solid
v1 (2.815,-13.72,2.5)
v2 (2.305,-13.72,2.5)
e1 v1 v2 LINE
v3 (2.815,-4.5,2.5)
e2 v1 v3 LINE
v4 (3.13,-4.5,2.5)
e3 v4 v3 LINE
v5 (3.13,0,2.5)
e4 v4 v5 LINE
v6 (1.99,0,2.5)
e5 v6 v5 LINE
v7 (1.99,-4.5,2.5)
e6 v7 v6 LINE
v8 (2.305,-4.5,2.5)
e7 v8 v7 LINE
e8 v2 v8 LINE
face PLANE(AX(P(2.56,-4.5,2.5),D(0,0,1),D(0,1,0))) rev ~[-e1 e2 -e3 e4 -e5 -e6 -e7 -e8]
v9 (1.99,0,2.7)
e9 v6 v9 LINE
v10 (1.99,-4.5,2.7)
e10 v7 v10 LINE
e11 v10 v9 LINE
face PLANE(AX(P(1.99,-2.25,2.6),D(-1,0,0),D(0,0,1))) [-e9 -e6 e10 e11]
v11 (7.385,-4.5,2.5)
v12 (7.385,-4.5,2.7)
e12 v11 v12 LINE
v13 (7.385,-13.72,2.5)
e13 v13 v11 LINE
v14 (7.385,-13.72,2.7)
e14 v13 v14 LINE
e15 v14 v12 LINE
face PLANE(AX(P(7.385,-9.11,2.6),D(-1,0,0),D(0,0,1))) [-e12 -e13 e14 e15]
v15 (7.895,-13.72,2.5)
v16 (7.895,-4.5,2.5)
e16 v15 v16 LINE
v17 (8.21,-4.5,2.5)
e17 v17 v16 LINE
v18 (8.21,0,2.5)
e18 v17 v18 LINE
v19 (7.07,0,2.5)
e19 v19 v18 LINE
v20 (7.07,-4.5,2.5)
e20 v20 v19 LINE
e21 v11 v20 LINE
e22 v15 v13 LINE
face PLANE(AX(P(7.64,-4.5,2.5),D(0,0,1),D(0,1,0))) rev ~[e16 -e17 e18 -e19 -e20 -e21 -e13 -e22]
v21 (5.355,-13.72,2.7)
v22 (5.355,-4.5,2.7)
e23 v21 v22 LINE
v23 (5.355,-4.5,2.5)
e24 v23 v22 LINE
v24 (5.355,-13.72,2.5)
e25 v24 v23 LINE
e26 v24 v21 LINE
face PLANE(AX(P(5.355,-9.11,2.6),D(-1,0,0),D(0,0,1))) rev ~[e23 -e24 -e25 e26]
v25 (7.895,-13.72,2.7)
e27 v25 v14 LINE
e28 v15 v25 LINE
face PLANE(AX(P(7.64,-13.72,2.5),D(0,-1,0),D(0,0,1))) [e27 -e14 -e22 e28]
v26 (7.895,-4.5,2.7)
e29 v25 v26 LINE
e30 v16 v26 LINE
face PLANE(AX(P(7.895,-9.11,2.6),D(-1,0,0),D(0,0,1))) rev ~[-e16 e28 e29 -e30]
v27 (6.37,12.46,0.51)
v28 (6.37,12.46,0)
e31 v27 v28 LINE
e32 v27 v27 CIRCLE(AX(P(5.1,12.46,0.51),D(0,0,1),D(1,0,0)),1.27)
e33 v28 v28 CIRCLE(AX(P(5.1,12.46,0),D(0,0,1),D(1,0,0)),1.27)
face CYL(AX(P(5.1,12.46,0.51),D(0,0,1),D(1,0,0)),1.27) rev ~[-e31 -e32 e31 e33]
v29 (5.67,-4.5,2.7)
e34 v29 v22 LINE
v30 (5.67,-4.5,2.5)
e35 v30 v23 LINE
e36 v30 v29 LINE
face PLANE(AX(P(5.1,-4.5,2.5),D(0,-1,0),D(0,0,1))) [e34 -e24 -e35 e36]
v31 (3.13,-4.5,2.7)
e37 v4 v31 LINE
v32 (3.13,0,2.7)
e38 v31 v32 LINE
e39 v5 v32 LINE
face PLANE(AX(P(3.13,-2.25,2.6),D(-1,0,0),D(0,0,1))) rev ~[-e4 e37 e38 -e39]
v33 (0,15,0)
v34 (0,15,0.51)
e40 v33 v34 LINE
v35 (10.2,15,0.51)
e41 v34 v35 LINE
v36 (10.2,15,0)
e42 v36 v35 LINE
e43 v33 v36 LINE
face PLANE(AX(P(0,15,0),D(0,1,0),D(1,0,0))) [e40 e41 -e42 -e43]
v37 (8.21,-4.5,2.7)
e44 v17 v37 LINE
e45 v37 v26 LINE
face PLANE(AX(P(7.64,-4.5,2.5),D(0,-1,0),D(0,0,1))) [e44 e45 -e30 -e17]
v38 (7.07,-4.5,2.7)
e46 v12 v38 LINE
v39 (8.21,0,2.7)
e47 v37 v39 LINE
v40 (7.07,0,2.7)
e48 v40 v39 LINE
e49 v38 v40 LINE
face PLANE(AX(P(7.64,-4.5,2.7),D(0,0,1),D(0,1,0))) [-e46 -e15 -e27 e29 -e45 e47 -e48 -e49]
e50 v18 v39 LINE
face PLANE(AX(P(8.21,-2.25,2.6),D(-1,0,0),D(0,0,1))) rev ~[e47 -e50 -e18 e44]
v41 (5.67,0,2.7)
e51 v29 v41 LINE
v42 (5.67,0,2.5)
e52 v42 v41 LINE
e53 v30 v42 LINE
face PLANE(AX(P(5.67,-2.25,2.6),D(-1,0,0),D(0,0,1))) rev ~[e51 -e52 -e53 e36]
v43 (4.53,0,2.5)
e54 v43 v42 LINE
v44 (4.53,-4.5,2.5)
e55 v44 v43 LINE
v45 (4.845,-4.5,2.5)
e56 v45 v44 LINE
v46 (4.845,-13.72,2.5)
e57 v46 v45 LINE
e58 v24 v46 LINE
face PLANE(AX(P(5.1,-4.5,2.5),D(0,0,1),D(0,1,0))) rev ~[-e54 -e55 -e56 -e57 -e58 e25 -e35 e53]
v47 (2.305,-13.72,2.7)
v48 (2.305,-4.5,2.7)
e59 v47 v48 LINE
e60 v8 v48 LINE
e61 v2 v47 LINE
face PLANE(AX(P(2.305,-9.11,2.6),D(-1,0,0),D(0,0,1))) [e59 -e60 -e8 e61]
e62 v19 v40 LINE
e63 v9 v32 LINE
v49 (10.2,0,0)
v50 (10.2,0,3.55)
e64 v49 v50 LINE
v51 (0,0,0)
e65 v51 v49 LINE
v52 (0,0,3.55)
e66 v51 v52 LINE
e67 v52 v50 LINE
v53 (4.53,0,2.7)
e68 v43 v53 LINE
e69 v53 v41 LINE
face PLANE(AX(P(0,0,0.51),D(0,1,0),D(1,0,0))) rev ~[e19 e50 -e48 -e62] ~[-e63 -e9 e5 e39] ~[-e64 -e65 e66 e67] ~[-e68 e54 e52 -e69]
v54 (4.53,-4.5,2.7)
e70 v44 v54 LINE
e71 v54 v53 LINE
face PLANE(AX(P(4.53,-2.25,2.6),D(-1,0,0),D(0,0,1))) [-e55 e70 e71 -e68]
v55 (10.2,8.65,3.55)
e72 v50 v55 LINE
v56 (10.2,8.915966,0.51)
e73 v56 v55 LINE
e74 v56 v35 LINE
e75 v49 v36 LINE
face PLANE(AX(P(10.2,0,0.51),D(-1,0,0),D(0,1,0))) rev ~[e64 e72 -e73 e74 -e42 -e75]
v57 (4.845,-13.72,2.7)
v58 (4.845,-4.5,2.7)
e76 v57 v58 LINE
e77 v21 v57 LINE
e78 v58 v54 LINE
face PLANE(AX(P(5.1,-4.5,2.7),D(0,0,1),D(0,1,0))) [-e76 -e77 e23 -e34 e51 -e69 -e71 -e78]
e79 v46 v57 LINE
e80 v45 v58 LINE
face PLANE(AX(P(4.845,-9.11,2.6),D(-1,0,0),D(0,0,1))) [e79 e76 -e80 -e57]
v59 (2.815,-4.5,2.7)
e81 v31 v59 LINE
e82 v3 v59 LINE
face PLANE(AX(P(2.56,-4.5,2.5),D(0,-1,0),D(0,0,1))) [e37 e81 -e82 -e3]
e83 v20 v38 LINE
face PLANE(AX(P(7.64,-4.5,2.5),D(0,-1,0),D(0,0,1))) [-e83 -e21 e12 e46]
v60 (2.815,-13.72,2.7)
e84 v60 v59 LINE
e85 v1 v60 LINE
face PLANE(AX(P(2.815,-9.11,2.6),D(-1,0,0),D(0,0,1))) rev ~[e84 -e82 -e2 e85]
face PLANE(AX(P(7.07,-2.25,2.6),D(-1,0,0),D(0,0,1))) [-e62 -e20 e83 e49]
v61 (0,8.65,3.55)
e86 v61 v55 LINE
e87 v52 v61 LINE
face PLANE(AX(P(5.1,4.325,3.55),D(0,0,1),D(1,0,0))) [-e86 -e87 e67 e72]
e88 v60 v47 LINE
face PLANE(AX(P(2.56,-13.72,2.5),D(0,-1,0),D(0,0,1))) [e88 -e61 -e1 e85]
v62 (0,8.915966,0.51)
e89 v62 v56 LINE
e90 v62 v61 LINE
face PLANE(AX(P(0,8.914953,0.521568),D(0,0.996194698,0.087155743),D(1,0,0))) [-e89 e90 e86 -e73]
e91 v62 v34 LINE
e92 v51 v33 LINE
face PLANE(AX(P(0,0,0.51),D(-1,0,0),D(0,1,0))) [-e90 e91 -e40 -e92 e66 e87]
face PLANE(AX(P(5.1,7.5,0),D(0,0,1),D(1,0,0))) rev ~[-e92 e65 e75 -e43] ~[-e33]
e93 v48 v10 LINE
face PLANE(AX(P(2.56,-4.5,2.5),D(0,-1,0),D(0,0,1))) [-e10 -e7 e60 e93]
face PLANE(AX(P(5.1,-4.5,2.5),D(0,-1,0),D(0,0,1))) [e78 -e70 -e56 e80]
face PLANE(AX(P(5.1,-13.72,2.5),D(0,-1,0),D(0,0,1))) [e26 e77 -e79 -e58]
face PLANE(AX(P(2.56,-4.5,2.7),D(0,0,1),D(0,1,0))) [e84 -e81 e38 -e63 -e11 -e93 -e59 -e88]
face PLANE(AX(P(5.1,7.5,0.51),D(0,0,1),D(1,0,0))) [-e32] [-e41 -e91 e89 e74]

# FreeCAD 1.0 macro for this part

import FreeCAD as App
import Part
import Sketcher
from FreeCAD import Vector


def faces_at(feature, points):
    """Names of the faces that lie closest to the given points."""
    faces = feature.Shape.Faces
    near = lambda p: min(range(len(faces)), key=lambda i: faces[i].distToShape(Part.Vertex(*p))[0])
    return sorted({f"Face{near(p) + 1}" for p in points})

doc = App.newDocument("Part")
params = doc.addObject("Spreadsheet::Sheet", "Params")
for row, (alias, value) in enumerate([
    ("sketch1_height", "15 mm"),
    ("sketch1_width", "10.2 mm"),
    ("pad1_length", "0.51 mm"),
    ("sketch2_width", "10.2 mm"),
    ("sketch2_height", "8.65 mm"),
    ("pad2_length", "3.04 mm"),
    ("draft_angle", "5 deg"),
    ("sketch3_width", "4.5 mm"),
    ("sketch3_height", "0.2 mm"),
    ("pad3_length", "1.14 mm"),
    ("sketch4_height", "0.2 mm"),
    ("sketch4_width", "9.22 mm"),
    ("pad4_length", "0.51 mm"),
    ("linearpattern_pitch", "2.54 mm"),
    ("sketch5_diameter", "2.54 mm"),
], start=1):
    params.set(f"A{row}", alias)
    params.set(f"B{row}", "=" + value)
    params.setAlias(f"B{row}", alias)

body = doc.addObject("PartDesign::Body", "Body")

# Sketch on XY plane
sketch1 = doc.addObject("Sketcher::SketchObject", "Sketch")
body.addObject(sketch1)
sketch1.AttachmentSupport = (doc.XY_Plane, [""])
sketch1.MapMode = "FlatFace"
sketch1.addGeometry([
    Part.LineSegment(Vector(0, 15, 0), Vector(0, 0, 0)),
    Part.LineSegment(Vector(0, 0, 0), Vector(10.2, 0, 0)),
    Part.LineSegment(Vector(10.2, 0, 0), Vector(10.2, 15, 0)),
    Part.LineSegment(Vector(10.2, 15, 0), Vector(0, 15, 0)),
], False)
sketch1.addConstraint([
    Sketcher.Constraint("Coincident", 0, 2, 1, 1),
    Sketcher.Constraint("Coincident", 1, 2, 2, 1),
    Sketcher.Constraint("Coincident", 2, 2, 3, 1),
    Sketcher.Constraint("Coincident", 3, 2, 0, 1),
    Sketcher.Constraint("Vertical", 0),
    Sketcher.Constraint("Horizontal", 1),
    Sketcher.Constraint("Vertical", 2),
    Sketcher.Constraint("Horizontal", 3),
    Sketcher.Constraint("Coincident", 0, 2, -1, 1),
    Sketcher.Constraint("DistanceY", 0, 2, 0, 1, 15.0),
    Sketcher.Constraint("DistanceX", 1, 1, 1, 2, 10.2),
])
sketch1.setExpression("Constraints[9]", "Params.sketch1_height")
sketch1.setExpression("Constraints[10]", "Params.sketch1_width")
pad1 = doc.addObject("PartDesign::Pad", "Pad")
body.addObject(pad1)
pad1.Profile = sketch1
pad1.setExpression("Length", "Params.pad1_length")

# Sketch on XY plane
sketch2 = doc.addObject("Sketcher::SketchObject", "Sketch001")
body.addObject(sketch2)
sketch2.AttachmentSupport = (doc.XY_Plane, [""])
sketch2.MapMode = "FlatFace"
sketch2.AttachmentOffset = App.Placement(Vector(0, 0, 0.51), App.Rotation())
sketch2.addGeometry([
    Part.LineSegment(Vector(0, 8.65, 0), Vector(0, 0, 0)),
    Part.LineSegment(Vector(0, 0, 0), Vector(10.2, 0, 0)),
    Part.LineSegment(Vector(10.2, 0, 0), Vector(10.2, 8.65, 0)),
    Part.LineSegment(Vector(10.2, 8.65, 0), Vector(0, 8.65, 0)),
], False)
sketch2.addConstraint([
    Sketcher.Constraint("Coincident", 0, 2, 1, 1),
    Sketcher.Constraint("Coincident", 1, 2, 2, 1),
    Sketcher.Constraint("Coincident", 2, 2, 3, 1),
    Sketcher.Constraint("Coincident", 3, 2, 0, 1),
    Sketcher.Constraint("Vertical", 0),
    Sketcher.Constraint("Horizontal", 1),
    Sketcher.Constraint("Vertical", 2),
    Sketcher.Constraint("Horizontal", 3),
    Sketcher.Constraint("Coincident", 0, 2, -1, 1),
    Sketcher.Constraint("DistanceX", 1, 1, 1, 2, 10.2),
    Sketcher.Constraint("DistanceY", 0, 2, 0, 1, 8.65),
])
sketch2.setExpression("Constraints[9]", "Params.sketch2_width")
sketch2.setExpression("Constraints[10]", "Params.sketch2_height")
pad2 = doc.addObject("PartDesign::Pad", "Pad001")
body.addObject(pad2)
pad2.Profile = sketch2
pad2.setExpression("Length", "Params.pad2_length")
doc.recompute()

datumplane = doc.addObject("PartDesign::Plane", "DatumPlane")
body.addObject(datumplane)
datumplane.AttachmentSupport = (doc.XY_Plane, [""])
datumplane.MapMode = "FlatFace"
datumplane.AttachmentOffset = App.Placement(Vector(0, 0, 3.55), App.Rotation())
draft = doc.addObject("PartDesign::Draft", "Draft")
body.addObject(draft)
draft.Base = (pad2, faces_at(pad2, [(5.1, 8.65, 2.03)]))
draft.NeutralPlane = (datumplane, [""])
draft.setExpression("Angle", "Params.draft_angle")
draft.Reversed = False

# Sketch on YZ plane
sketch3 = doc.addObject("Sketcher::SketchObject", "Sketch002")
body.addObject(sketch3)
sketch3.AttachmentSupport = (doc.YZ_Plane, [""])
sketch3.MapMode = "FlatFace"
sketch3.AttachmentOffset = App.Placement(Vector(0, 0, 2.56), App.Rotation())
sketch3.addGeometry([
    Part.LineSegment(Vector(0, 2.5, 0), Vector(-4.5, 2.5, 0)),
    Part.LineSegment(Vector(-4.5, 2.5, 0), Vector(-4.5, 2.7, 0)),
    Part.LineSegment(Vector(-4.5, 2.7, 0), Vector(0, 2.7, 0)),
    Part.LineSegment(Vector(0, 2.7, 0), Vector(0, 2.5, 0)),
], False)
sketch3.addConstraint([
    Sketcher.Constraint("Coincident", 0, 2, 1, 1),
    Sketcher.Constraint("Coincident", 1, 2, 2, 1),
    Sketcher.Constraint("Coincident", 2, 2, 3, 1),
    Sketcher.Constraint("Coincident", 3, 2, 0, 1),
    Sketcher.Constraint("Horizontal", 0),
    Sketcher.Constraint("Vertical", 1),
    Sketcher.Constraint("Horizontal", 2),
    Sketcher.Constraint("Vertical", 3),
    Sketcher.Constraint("PointOnObject", 2, 2, -2),
    Sketcher.Constraint("DistanceX", 0, 2, 0, 1, 4.5),
    Sketcher.Constraint("DistanceY", 1, 1, 1, 2, 0.2),
    Sketcher.Constraint("DistanceY", -1, 1, 0, 2, 2.5),
])
sketch3.setExpression("Constraints[9]", "Params.sketch3_width")
sketch3.setExpression("Constraints[10]", "Params.sketch3_height")
pad3 = doc.addObject("PartDesign::Pad", "Pad002")
body.addObject(pad3)
pad3.Profile = sketch3
pad3.setExpression("Length", "Params.pad3_length")
pad3.Midplane = True

# Sketch on YZ plane
sketch4 = doc.addObject("Sketcher::SketchObject", "Sketch003")
body.addObject(sketch4)
sketch4.AttachmentSupport = (doc.YZ_Plane, [""])
sketch4.MapMode = "FlatFace"
sketch4.AttachmentOffset = App.Placement(Vector(0, 0, 2.56), App.Rotation())
sketch4.addGeometry([
    Part.LineSegment(Vector(-4.5, 2.5, 0), Vector(-13.72, 2.5, 0)),
    Part.LineSegment(Vector(-13.72, 2.5, 0), Vector(-13.72, 2.7, 0)),
    Part.LineSegment(Vector(-13.72, 2.7, 0), Vector(-4.5, 2.7, 0)),
    Part.LineSegment(Vector(-4.5, 2.7, 0), Vector(-4.5, 2.5, 0)),
], False)
sketch4.addConstraint([
    Sketcher.Constraint("Coincident", 0, 2, 1, 1),
    Sketcher.Constraint("Coincident", 1, 2, 2, 1),
    Sketcher.Constraint("Coincident", 2, 2, 3, 1),
    Sketcher.Constraint("Coincident", 3, 2, 0, 1),
    Sketcher.Constraint("Horizontal", 0),
    Sketcher.Constraint("Vertical", 1),
    Sketcher.Constraint("Horizontal", 2),
    Sketcher.Constraint("Vertical", 3),
    Sketcher.Constraint("DistanceY", 1, 1, 1, 2, 0.2),
    Sketcher.Constraint("DistanceX", 0, 2, 0, 1, 9.22),
    Sketcher.Constraint("DistanceY", -1, 1, 0, 2, 2.5),
    Sketcher.Constraint("DistanceX", 2, 2, -1, 1, 4.5),
])
sketch4.setExpression("Constraints[8]", "Params.sketch4_height")
sketch4.setExpression("Constraints[9]", "Params.sketch4_width")
pad4 = doc.addObject("PartDesign::Pad", "Pad003")
body.addObject(pad4)
pad4.Profile = sketch4
pad4.setExpression("Length", "Params.pad4_length")
pad4.Midplane = True
doc.recompute()

linearpattern = doc.addObject("PartDesign::LinearPattern", "LinearPattern")
body.addObject(linearpattern)
linearpattern.Originals = [pad3, pad4]
linearpattern.Direction = (doc.X_Axis, [""])
linearpattern.Mode = "offset"
linearpattern.setExpression("Offset", "Params.linearpattern_pitch")
linearpattern.Occurrences = 3
body.Tip = linearpattern

# Sketch on XY plane
sketch5 = doc.addObject("Sketcher::SketchObject", "Sketch004")
body.addObject(sketch5)
sketch5.AttachmentSupport = (doc.XY_Plane, [""])
sketch5.MapMode = "FlatFace"
sketch5.AttachmentOffset = App.Placement(Vector(0, 0, 0.51), App.Rotation())
sketch5.addGeometry(Part.Circle(Vector(5.1, 12.46, 0), Vector(0, 0, 1), 1.27), False)
sketch5.addConstraint([
    Sketcher.Constraint("Diameter", 0, 2.54),
    Sketcher.Constraint("DistanceX", -1, 1, 0, 3, 5.1),
    Sketcher.Constraint("DistanceY", -1, 1, 0, 3, 12.46),
])
sketch5.setExpression("Constraints[0]", "Params.sketch5_diameter")
pocket1 = doc.addObject("PartDesign::Pocket", "Pocket")
body.addObject(pocket1)
pocket1.Profile = sketch5
pocket1.Type = "UpToFirst"

doc.recompute()
